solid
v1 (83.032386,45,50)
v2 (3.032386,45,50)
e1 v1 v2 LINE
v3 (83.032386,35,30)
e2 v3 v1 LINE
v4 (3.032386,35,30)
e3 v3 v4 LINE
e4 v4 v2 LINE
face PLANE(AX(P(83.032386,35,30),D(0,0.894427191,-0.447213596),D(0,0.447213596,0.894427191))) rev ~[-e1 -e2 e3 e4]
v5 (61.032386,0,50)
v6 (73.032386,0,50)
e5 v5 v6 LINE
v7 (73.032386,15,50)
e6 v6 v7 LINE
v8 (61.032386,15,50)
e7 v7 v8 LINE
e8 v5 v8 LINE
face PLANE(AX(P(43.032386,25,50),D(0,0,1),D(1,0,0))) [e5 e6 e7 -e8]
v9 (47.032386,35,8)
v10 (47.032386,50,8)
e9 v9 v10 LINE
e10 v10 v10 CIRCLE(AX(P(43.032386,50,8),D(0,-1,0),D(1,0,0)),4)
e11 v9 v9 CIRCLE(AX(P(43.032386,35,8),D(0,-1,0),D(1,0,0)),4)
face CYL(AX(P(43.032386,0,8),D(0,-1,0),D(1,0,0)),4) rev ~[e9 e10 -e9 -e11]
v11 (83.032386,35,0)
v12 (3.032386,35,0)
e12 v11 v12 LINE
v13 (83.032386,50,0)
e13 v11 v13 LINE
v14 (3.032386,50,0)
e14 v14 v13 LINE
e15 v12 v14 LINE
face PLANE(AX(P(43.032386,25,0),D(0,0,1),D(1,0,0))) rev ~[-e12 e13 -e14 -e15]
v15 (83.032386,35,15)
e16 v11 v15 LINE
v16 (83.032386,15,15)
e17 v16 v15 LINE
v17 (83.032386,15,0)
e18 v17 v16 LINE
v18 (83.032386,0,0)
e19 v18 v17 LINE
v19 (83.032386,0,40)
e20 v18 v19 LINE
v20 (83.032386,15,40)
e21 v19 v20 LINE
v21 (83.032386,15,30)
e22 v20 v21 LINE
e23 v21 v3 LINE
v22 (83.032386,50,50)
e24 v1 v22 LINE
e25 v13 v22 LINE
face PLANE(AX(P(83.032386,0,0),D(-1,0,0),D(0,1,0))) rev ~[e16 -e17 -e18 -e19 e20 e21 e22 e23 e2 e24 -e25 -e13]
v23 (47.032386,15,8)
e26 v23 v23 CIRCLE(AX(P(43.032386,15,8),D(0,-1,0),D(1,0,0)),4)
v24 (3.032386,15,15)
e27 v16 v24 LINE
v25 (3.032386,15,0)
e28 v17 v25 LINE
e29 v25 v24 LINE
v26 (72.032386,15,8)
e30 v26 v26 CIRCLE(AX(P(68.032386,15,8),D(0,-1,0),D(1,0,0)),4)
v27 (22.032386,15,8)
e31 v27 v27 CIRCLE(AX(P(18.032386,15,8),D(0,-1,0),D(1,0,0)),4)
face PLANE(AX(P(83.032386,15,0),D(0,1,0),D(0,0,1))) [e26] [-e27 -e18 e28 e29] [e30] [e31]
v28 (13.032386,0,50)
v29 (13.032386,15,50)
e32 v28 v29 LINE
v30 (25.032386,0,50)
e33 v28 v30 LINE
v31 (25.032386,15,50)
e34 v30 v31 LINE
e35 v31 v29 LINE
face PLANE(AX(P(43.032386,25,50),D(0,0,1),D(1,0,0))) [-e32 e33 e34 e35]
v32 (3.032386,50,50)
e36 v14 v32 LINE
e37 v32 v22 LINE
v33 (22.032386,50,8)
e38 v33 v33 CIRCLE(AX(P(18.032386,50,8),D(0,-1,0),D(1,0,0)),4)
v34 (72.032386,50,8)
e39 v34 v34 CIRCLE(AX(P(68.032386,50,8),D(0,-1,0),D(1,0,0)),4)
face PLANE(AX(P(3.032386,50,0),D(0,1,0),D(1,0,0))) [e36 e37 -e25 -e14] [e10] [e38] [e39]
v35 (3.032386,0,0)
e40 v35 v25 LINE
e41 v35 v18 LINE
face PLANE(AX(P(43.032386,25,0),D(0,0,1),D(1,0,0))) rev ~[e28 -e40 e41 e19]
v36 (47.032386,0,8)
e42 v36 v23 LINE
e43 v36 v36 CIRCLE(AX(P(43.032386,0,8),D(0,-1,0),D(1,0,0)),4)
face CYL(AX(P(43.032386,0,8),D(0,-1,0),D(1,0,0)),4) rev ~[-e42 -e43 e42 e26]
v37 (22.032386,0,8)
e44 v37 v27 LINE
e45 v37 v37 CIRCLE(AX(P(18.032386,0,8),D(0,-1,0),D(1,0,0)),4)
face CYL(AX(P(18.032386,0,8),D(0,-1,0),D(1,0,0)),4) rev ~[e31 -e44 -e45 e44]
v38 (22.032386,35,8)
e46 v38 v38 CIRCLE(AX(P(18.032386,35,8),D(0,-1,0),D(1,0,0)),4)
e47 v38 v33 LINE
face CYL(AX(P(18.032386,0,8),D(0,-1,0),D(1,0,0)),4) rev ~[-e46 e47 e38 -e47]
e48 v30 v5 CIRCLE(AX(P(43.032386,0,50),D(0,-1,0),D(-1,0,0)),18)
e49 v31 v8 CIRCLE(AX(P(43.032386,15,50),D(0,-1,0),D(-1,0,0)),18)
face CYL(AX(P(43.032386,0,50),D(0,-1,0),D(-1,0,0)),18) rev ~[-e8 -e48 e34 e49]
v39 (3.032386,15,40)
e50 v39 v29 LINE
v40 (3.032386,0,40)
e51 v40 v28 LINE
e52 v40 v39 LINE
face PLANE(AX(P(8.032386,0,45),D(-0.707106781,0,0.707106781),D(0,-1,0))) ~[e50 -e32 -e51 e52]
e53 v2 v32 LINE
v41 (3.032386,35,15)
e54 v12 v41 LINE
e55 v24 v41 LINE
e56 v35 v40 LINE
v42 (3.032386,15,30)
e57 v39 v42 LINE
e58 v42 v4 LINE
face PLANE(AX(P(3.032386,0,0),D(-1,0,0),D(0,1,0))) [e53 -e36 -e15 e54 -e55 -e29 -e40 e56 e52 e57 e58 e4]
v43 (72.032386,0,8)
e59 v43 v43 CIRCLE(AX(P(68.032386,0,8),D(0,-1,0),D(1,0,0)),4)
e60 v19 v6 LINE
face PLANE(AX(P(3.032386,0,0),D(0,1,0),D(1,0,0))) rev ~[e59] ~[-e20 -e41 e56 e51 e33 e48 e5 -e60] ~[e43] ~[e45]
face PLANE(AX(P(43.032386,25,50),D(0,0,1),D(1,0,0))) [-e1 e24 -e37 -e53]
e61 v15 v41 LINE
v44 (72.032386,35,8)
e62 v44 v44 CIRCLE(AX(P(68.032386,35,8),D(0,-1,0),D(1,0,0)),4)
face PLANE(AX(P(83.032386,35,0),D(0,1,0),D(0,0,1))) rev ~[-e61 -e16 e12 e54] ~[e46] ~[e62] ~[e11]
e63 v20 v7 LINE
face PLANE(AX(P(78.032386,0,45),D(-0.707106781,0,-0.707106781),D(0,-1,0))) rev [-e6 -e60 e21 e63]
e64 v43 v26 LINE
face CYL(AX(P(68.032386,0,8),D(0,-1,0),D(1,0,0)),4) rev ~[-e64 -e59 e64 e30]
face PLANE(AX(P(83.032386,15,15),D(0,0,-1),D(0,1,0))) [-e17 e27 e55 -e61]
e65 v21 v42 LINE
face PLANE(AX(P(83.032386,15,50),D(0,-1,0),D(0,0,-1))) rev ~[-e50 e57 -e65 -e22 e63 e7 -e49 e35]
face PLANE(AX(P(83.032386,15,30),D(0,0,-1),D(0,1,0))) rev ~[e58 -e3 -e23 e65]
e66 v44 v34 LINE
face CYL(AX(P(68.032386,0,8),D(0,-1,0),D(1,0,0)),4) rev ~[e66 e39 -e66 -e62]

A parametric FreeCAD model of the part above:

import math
import FreeCAD as App
import Part
import Sketcher

V = App.Vector
Q = App.Units.Quantity


def edges_at(feature, points):
    """Names of the edges that pass closest to the given points."""
    edges = feature.Shape.Edges
    near = lambda p: min(range(len(edges)), key=lambda i: edges[i].distToShape(Part.Vertex(*p))[0])
    return sorted({f"Edge{near(p) + 1}" for p in points})

doc = App.newDocument("Part")
body = doc.addObject("PartDesign::Body", "Body")

sketch1 = doc.addObject("Sketcher::SketchObject", "Sketch")
body.addObject(sketch1)
sketch1.AttachmentSupport = (doc.XY_Plane, [""])
sketch1.MapMode = "FlatFace"
sketch1.addGeometry(Part.LineSegment(V(3, 50, 0), V(3, 0, 0)), False)
sketch1.addGeometry(Part.LineSegment(V(3, 0, 0), V(83, 0, 0)), False)
sketch1.addGeometry(Part.LineSegment(V(83, 0, 0), V(83, 50, 0)), False)
sketch1.addGeometry(Part.LineSegment(V(83, 50, 0), V(3, 50, 0)), False)
sketch1.addConstraint(Sketcher.Constraint("Coincident", 0, 2, 1, 1))
sketch1.addConstraint(Sketcher.Constraint("Coincident", 1, 2, 2, 1))
sketch1.addConstraint(Sketcher.Constraint("Coincident", 2, 2, 3, 1))
sketch1.addConstraint(Sketcher.Constraint("Coincident", 3, 2, 0, 1))
sketch1.addConstraint(Sketcher.Constraint("Vertical", 0))
sketch1.addConstraint(Sketcher.Constraint("Horizontal", 1))
sketch1.addConstraint(Sketcher.Constraint("Vertical", 2))
sketch1.addConstraint(Sketcher.Constraint("Horizontal", 3))
sketch1.addConstraint(Sketcher.Constraint("PointOnObject", 0, 2, -1))
sketch1.addConstraint(Sketcher.Constraint("DistanceX", 1, 1, 1, 2, Q("80 mm")))
sketch1.addConstraint(Sketcher.Constraint("DistanceY", 0, 2, 0, 1, Q("50 mm")))
sketch1.addConstraint(Sketcher.Constraint("DistanceX", -1, 1, 0, 2, Q("3.032386 mm")))
pad1 = doc.addObject("PartDesign::Pad", "Pad")
body.addObject(pad1)
pad1.Profile = sketch1
pad1.Length = 50

sketch2 = doc.addObject("Sketcher::SketchObject", "Sketch001")
body.addObject(sketch2)
sketch2.AttachmentSupport = (doc.YZ_Plane, [""])
sketch2.MapMode = "FlatFace"
sketch2.AttachmentOffset = App.Placement(V(0, 0, 83.032386), App.Rotation())
sketch2.addGeometry(Part.LineSegment(V(15, 15, 0), V(15, 0, 0)), False)
sketch2.addGeometry(Part.LineSegment(V(15, 0, 0), V(35, 0, 0)), False)
sketch2.addGeometry(Part.LineSegment(V(35, 0, 0), V(35, 15, 0)), False)
sketch2.addGeometry(Part.LineSegment(V(35, 15, 0), V(15, 15, 0)), False)
sketch2.addConstraint(Sketcher.Constraint("Coincident", 0, 2, 1, 1))
sketch2.addConstraint(Sketcher.Constraint("Coincident", 1, 2, 2, 1))
sketch2.addConstraint(Sketcher.Constraint("Coincident", 2, 2, 3, 1))
sketch2.addConstraint(Sketcher.Constraint("Coincident", 3, 2, 0, 1))
sketch2.addConstraint(Sketcher.Constraint("Vertical", 0))
sketch2.addConstraint(Sketcher.Constraint("Horizontal", 1))
sketch2.addConstraint(Sketcher.Constraint("Vertical", 2))
sketch2.addConstraint(Sketcher.Constraint("Horizontal", 3))
sketch2.addConstraint(Sketcher.Constraint("PointOnObject", 0, 2, -1))
sketch2.addConstraint(Sketcher.Constraint("DistanceX", 1, 1, 1, 2, Q("20 mm")))
sketch2.addConstraint(Sketcher.Constraint("DistanceY", 0, 2, 0, 1, Q("15 mm")))
sketch2.addConstraint(Sketcher.Constraint("DistanceX", -1, 1, 0, 2, Q("15 mm")))
pocket1 = doc.addObject("PartDesign::Pocket", "Pocket")
body.addObject(pocket1)
pocket1.Profile = sketch2
pocket1.Length = 80

sketch3 = doc.addObject("Sketcher::SketchObject", "Sketch002")
body.addObject(sketch3)
sketch3.AttachmentSupport = (doc.YZ_Plane, [""])
sketch3.MapMode = "FlatFace"
sketch3.AttachmentOffset = App.Placement(V(0, 0, 83.032386), App.Rotation())
sketch3.addGeometry(Part.LineSegment(V(45, 50, 0), V(15, 50, 0)), False)
sketch3.addGeometry(Part.LineSegment(V(15, 50, 0), V(15, 30, 0)), False)
sketch3.addGeometry(Part.LineSegment(V(15, 30, 0), V(35, 30, 0)), False)
sketch3.addGeometry(Part.LineSegment(V(35, 30, 0), V(45, 50, 0)), False)
sketch3.addConstraint(Sketcher.Constraint("Coincident", 0, 2, 1, 1))
sketch3.addConstraint(Sketcher.Constraint("Coincident", 1, 2, 2, 1))
sketch3.addConstraint(Sketcher.Constraint("Coincident", 2, 2, 3, 1))
sketch3.addConstraint(Sketcher.Constraint("Coincident", 3, 2, 0, 1))
sketch3.addConstraint(Sketcher.Constraint("Horizontal", 0))
sketch3.addConstraint(Sketcher.Constraint("Vertical", 1))
sketch3.addConstraint(Sketcher.Constraint("Horizontal", 2))
sketch3.addConstraint(Sketcher.Constraint("Equal", 2, 1))
sketch3.addConstraint(Sketcher.Constraint("DistanceX", 0, 2, 0, 1, Q("30 mm")))
sketch3.addConstraint(Sketcher.Constraint("DistanceX", 2, 1, 2, 2, Q("20 mm")))
sketch3.addConstraint(Sketcher.Constraint("DistanceX", -1, 1, 0, 2, Q("15 mm")))
sketch3.addConstraint(Sketcher.Constraint("DistanceY", -1, 1, 0, 2, Q("50 mm")))
pocket2 = doc.addObject("PartDesign::Pocket", "Pocket001")
body.addObject(pocket2)
pocket2.Profile = sketch3
pocket2.Length = 80

sketch4 = doc.addObject("Sketcher::SketchObject", "Sketch003")
body.addObject(sketch4)
sketch4.AttachmentSupport = (doc.XZ_Plane, [""])
sketch4.MapMode = "FlatFace"
sketch4.addGeometry(Part.LineSegment(V(61, 50, 0), V(25, 50, 0)), False)
sketch4.addGeometry(Part.ArcOfCircle(Part.Circle(V(43, 50, 0), V(0, 0, 1), 18), math.radians(180), math.radians(360)), False)
sketch4.addConstraint(Sketcher.Constraint("Coincident", 0, 1, 1, 2))
sketch4.addConstraint(Sketcher.Constraint("Coincident", 1, 1, 0, 2))
sketch4.addConstraint(Sketcher.Constraint("Horizontal", 0))
sketch4.addConstraint(Sketcher.Constraint("Horizontal", 1, 3, 0, 1))
sketch4.addConstraint(Sketcher.Constraint("Radius", 1, Q("18 mm")))
sketch4.addConstraint(Sketcher.Constraint("DistanceY", -1, 1, 1, 3, Q("50 mm")))
sketch4.addConstraint(Sketcher.Constraint("DistanceX", -1, 1, 1, 3, Q("43.032386 mm")))
pocket3 = doc.addObject("PartDesign::Pocket", "Pocket002")
body.addObject(pocket3)
pocket3.Profile = sketch4
pocket3.Length = 25
doc.recompute()

chamfer = doc.addObject("PartDesign::Chamfer", "Chamfer")
body.addObject(chamfer)
chamfer.Base = (pocket3, edges_at(pocket3, [(83.032, 7.5, 50)]))
chamfer.Size = 10
doc.recompute()

chamfer2 = doc.addObject("PartDesign::Chamfer", "Chamfer001")
body.addObject(chamfer2)
chamfer2.Base = (chamfer, edges_at(chamfer, [(3.032, 7.5, 50)]))
chamfer2.Size = 10

sketch5 = doc.addObject("Sketcher::SketchObject", "Sketch004")
body.addObject(sketch5)
sketch5.AttachmentSupport = (doc.XZ_Plane, [""])
sketch5.MapMode = "FlatFace"
sketch5.addGeometry(Part.Circle(V(18, 8, 0), V(0, 0, 1), 4), False)
sketch5.addGeometry(Part.Circle(V(43, 8, 0), V(0, 0, 1), 4), False)
sketch5.addGeometry(Part.Circle(V(68, 8, 0), V(0, 0, 1), 4), False)
sketch5.addConstraint(Sketcher.Constraint("Equal", 0, 1))
sketch5.addConstraint(Sketcher.Constraint("Equal", 1, 2))
sketch5.addConstraint(Sketcher.Constraint("Horizontal", 0, 3, 1, 3))
sketch5.addConstraint(Sketcher.Constraint("Horizontal", 1, 3, 2, 3))
sketch5.addConstraint(Sketcher.Constraint("Diameter", 0, Q("8 mm")))
sketch5.addConstraint(Sketcher.Constraint("DistanceY", -1, 1, 0, 3, Q("8 mm")))
sketch5.addConstraint(Sketcher.Constraint("DistanceX", 0, 3, 1, 3, Q("25 mm")))
sketch5.addConstraint(Sketcher.Constraint("DistanceX", 1, 3, 2, 3, Q("25 mm")))
sketch5.addConstraint(Sketcher.Constraint("DistanceX", -1, 1, 0, 3, Q("18.032386 mm")))
pocket4 = doc.addObject("PartDesign::Pocket", "Pocket003")
body.addObject(pocket4)
pocket4.Profile = sketch5
pocket4.Length = 50

doc.recompute()
